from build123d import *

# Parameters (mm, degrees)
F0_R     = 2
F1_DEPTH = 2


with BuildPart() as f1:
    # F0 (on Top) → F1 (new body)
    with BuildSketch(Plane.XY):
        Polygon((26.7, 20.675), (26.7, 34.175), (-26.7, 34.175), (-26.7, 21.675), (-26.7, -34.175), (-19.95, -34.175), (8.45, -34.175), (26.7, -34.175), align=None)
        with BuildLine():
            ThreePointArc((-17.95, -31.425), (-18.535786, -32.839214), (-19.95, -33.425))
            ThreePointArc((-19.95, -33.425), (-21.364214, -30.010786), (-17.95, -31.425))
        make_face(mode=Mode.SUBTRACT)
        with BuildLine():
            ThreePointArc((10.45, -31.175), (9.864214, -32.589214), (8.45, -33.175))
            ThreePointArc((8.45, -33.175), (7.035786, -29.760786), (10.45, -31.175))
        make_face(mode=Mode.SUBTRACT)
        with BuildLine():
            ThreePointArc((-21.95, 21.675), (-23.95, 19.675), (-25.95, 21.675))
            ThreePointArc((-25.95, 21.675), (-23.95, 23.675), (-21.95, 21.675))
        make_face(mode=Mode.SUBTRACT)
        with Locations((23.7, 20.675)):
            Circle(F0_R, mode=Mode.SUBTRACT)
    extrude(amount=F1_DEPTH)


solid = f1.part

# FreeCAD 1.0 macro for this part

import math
import FreeCAD as App
import Part
import Sketcher


def add_polygon(sketch, points):
    """Adds a closed chain of lines whose ends are joined by coincident constraints."""
    first, n = sketch.GeometryCount, len(points)
    for a, b in zip(points, points[1:] + points[:1]):
        sketch.addGeometry(Part.LineSegment(App.Vector(*a, 0), App.Vector(*b, 0)), False)
    for i in range(n):
        sketch.addConstraint(Sketcher.Constraint("Coincident", first + i, 2, first + (i + 1) % n, 1))

doc = App.newDocument("Part")
body = doc.addObject("PartDesign::Body", "Body")

# Sketch on XY plane
sketch1 = body.newObject("Sketcher::SketchObject", "Sketch")
sketch1.AttachmentSupport = (doc.getObject("XY_Plane"), [""])
sketch1.MapMode = "FlatFace"
add_polygon(sketch1, [(26.7, 34.175), (-26.7, 34.175), (-26.7, -34.175), (26.7, -34.175)])  # lines 0-3
sketch1.addGeometry(Part.ArcOfCircle(Part.Circle(App.Vector(-19.95, -31.425, 0), App.Vector(0, 0, 1), 2), math.radians(-0.000007), math.radians(270.000007)), False)  # 4
sketch1.addGeometry(Part.ArcOfCircle(Part.Circle(App.Vector(-19.949999, -31.425001, 0), App.Vector(0, 0, 1), 1.999999), math.radians(-90.000043), math.radians(0.000043)), False)  # 5
sketch1.addGeometry(Part.ArcOfCircle(Part.Circle(App.Vector(8.45, -31.175, 0), App.Vector(0, 0, 1), 2), math.radians(-0.000007), math.radians(270.000007)), False)  # 6
sketch1.addGeometry(Part.ArcOfCircle(Part.Circle(App.Vector(8.450001, -31.175001, 0), App.Vector(0, 0, 1), 1.999999), math.radians(-90.000043), math.radians(0.000043)), False)  # 7
sketch1.addGeometry(Part.Circle(App.Vector(-23.95, 21.675, 0), App.Vector(0, 0, 1), 2), False)  # 8
sketch1.addGeometry(Part.Circle(App.Vector(23.7, 20.675, 0), App.Vector(0, 0, 1), 2), False)  # 9
sketch1.addConstraint(Sketcher.Constraint("Tangent", 4, 1, 5, 2))
sketch1.addConstraint(Sketcher.Constraint("Coincident", 5, 1, 4, 2))
sketch1.addConstraint(Sketcher.Constraint("Tangent", 6, 1, 7, 2))
sketch1.addConstraint(Sketcher.Constraint("Coincident", 7, 1, 6, 2))
sketch1.addConstraint(Sketcher.Constraint("Horizontal", 0))
sketch1.addConstraint(Sketcher.Constraint("Vertical", 1))
sketch1.addConstraint(Sketcher.Constraint("Horizontal", 2))
sketch1.addConstraint(Sketcher.Constraint("Vertical", 3))
sketch1.addConstraint(Sketcher.Constraint("Equal", 5, 6))
sketch1.addConstraint(Sketcher.Constraint("Equal", 7, 8))
sketch1.addConstraint(Sketcher.Constraint("Equal", 8, 9))
sketch1.addConstraint(Sketcher.Constraint("Symmetric", 0, 2, 2, 2, -1, 1))
sketch1.addConstraint(Sketcher.Constraint("Horizontal", 5, 3, 4, 1))
sketch1.addConstraint(Sketcher.Constraint("Horizontal", 7, 3, 6, 1))
sketch1.addConstraint(Sketcher.Constraint("Vertical", 4, 3, 5, 1))
sketch1.addConstraint(Sketcher.Constraint("Vertical", 6, 3, 7, 1))
sketch1.addConstraint(Sketcher.Constraint("Diameter", 8, 4.0))
sketch1.addConstraint(Sketcher.Constraint("DistanceX", 0, 2, 0, 1, 53.4))
sketch1.addConstraint(Sketcher.Constraint("DistanceX", 8, 3, 4, 3, 4.0))
sketch1.addConstraint(Sketcher.Constraint("DistanceY", 9, 3, 8, 3, 1.0))
sketch1.addConstraint(Sketcher.Constraint("DistanceY", 1, 2, 6, 3, 3.0))
sketch1.addConstraint(Sketcher.Constraint("DistanceX", 9, 3, 3, 2, 3.0))
sketch1.addConstraint(Sketcher.Constraint("DistanceY", 1, 2, 1, 1, 68.35))
sketch1.addConstraint(Sketcher.Constraint("DistanceX", 5, 3, 6, 3, 28.399998))
sketch1.addConstraint(Sketcher.Constraint("DistanceY", 4, 3, 8, 3, 53.1))
sketch1.addConstraint(Sketcher.Constraint("DistanceY", 8, 3, 0, 2, 12.5))
sketch1.addConstraint(Sketcher.Constraint("DistanceX", 4, 3, -1, 1, 19.95))
pad1 = body.newObject("PartDesign::Pad", "Pad")
pad1.Profile = sketch1
pad1.Length = 2

doc.recompute()
